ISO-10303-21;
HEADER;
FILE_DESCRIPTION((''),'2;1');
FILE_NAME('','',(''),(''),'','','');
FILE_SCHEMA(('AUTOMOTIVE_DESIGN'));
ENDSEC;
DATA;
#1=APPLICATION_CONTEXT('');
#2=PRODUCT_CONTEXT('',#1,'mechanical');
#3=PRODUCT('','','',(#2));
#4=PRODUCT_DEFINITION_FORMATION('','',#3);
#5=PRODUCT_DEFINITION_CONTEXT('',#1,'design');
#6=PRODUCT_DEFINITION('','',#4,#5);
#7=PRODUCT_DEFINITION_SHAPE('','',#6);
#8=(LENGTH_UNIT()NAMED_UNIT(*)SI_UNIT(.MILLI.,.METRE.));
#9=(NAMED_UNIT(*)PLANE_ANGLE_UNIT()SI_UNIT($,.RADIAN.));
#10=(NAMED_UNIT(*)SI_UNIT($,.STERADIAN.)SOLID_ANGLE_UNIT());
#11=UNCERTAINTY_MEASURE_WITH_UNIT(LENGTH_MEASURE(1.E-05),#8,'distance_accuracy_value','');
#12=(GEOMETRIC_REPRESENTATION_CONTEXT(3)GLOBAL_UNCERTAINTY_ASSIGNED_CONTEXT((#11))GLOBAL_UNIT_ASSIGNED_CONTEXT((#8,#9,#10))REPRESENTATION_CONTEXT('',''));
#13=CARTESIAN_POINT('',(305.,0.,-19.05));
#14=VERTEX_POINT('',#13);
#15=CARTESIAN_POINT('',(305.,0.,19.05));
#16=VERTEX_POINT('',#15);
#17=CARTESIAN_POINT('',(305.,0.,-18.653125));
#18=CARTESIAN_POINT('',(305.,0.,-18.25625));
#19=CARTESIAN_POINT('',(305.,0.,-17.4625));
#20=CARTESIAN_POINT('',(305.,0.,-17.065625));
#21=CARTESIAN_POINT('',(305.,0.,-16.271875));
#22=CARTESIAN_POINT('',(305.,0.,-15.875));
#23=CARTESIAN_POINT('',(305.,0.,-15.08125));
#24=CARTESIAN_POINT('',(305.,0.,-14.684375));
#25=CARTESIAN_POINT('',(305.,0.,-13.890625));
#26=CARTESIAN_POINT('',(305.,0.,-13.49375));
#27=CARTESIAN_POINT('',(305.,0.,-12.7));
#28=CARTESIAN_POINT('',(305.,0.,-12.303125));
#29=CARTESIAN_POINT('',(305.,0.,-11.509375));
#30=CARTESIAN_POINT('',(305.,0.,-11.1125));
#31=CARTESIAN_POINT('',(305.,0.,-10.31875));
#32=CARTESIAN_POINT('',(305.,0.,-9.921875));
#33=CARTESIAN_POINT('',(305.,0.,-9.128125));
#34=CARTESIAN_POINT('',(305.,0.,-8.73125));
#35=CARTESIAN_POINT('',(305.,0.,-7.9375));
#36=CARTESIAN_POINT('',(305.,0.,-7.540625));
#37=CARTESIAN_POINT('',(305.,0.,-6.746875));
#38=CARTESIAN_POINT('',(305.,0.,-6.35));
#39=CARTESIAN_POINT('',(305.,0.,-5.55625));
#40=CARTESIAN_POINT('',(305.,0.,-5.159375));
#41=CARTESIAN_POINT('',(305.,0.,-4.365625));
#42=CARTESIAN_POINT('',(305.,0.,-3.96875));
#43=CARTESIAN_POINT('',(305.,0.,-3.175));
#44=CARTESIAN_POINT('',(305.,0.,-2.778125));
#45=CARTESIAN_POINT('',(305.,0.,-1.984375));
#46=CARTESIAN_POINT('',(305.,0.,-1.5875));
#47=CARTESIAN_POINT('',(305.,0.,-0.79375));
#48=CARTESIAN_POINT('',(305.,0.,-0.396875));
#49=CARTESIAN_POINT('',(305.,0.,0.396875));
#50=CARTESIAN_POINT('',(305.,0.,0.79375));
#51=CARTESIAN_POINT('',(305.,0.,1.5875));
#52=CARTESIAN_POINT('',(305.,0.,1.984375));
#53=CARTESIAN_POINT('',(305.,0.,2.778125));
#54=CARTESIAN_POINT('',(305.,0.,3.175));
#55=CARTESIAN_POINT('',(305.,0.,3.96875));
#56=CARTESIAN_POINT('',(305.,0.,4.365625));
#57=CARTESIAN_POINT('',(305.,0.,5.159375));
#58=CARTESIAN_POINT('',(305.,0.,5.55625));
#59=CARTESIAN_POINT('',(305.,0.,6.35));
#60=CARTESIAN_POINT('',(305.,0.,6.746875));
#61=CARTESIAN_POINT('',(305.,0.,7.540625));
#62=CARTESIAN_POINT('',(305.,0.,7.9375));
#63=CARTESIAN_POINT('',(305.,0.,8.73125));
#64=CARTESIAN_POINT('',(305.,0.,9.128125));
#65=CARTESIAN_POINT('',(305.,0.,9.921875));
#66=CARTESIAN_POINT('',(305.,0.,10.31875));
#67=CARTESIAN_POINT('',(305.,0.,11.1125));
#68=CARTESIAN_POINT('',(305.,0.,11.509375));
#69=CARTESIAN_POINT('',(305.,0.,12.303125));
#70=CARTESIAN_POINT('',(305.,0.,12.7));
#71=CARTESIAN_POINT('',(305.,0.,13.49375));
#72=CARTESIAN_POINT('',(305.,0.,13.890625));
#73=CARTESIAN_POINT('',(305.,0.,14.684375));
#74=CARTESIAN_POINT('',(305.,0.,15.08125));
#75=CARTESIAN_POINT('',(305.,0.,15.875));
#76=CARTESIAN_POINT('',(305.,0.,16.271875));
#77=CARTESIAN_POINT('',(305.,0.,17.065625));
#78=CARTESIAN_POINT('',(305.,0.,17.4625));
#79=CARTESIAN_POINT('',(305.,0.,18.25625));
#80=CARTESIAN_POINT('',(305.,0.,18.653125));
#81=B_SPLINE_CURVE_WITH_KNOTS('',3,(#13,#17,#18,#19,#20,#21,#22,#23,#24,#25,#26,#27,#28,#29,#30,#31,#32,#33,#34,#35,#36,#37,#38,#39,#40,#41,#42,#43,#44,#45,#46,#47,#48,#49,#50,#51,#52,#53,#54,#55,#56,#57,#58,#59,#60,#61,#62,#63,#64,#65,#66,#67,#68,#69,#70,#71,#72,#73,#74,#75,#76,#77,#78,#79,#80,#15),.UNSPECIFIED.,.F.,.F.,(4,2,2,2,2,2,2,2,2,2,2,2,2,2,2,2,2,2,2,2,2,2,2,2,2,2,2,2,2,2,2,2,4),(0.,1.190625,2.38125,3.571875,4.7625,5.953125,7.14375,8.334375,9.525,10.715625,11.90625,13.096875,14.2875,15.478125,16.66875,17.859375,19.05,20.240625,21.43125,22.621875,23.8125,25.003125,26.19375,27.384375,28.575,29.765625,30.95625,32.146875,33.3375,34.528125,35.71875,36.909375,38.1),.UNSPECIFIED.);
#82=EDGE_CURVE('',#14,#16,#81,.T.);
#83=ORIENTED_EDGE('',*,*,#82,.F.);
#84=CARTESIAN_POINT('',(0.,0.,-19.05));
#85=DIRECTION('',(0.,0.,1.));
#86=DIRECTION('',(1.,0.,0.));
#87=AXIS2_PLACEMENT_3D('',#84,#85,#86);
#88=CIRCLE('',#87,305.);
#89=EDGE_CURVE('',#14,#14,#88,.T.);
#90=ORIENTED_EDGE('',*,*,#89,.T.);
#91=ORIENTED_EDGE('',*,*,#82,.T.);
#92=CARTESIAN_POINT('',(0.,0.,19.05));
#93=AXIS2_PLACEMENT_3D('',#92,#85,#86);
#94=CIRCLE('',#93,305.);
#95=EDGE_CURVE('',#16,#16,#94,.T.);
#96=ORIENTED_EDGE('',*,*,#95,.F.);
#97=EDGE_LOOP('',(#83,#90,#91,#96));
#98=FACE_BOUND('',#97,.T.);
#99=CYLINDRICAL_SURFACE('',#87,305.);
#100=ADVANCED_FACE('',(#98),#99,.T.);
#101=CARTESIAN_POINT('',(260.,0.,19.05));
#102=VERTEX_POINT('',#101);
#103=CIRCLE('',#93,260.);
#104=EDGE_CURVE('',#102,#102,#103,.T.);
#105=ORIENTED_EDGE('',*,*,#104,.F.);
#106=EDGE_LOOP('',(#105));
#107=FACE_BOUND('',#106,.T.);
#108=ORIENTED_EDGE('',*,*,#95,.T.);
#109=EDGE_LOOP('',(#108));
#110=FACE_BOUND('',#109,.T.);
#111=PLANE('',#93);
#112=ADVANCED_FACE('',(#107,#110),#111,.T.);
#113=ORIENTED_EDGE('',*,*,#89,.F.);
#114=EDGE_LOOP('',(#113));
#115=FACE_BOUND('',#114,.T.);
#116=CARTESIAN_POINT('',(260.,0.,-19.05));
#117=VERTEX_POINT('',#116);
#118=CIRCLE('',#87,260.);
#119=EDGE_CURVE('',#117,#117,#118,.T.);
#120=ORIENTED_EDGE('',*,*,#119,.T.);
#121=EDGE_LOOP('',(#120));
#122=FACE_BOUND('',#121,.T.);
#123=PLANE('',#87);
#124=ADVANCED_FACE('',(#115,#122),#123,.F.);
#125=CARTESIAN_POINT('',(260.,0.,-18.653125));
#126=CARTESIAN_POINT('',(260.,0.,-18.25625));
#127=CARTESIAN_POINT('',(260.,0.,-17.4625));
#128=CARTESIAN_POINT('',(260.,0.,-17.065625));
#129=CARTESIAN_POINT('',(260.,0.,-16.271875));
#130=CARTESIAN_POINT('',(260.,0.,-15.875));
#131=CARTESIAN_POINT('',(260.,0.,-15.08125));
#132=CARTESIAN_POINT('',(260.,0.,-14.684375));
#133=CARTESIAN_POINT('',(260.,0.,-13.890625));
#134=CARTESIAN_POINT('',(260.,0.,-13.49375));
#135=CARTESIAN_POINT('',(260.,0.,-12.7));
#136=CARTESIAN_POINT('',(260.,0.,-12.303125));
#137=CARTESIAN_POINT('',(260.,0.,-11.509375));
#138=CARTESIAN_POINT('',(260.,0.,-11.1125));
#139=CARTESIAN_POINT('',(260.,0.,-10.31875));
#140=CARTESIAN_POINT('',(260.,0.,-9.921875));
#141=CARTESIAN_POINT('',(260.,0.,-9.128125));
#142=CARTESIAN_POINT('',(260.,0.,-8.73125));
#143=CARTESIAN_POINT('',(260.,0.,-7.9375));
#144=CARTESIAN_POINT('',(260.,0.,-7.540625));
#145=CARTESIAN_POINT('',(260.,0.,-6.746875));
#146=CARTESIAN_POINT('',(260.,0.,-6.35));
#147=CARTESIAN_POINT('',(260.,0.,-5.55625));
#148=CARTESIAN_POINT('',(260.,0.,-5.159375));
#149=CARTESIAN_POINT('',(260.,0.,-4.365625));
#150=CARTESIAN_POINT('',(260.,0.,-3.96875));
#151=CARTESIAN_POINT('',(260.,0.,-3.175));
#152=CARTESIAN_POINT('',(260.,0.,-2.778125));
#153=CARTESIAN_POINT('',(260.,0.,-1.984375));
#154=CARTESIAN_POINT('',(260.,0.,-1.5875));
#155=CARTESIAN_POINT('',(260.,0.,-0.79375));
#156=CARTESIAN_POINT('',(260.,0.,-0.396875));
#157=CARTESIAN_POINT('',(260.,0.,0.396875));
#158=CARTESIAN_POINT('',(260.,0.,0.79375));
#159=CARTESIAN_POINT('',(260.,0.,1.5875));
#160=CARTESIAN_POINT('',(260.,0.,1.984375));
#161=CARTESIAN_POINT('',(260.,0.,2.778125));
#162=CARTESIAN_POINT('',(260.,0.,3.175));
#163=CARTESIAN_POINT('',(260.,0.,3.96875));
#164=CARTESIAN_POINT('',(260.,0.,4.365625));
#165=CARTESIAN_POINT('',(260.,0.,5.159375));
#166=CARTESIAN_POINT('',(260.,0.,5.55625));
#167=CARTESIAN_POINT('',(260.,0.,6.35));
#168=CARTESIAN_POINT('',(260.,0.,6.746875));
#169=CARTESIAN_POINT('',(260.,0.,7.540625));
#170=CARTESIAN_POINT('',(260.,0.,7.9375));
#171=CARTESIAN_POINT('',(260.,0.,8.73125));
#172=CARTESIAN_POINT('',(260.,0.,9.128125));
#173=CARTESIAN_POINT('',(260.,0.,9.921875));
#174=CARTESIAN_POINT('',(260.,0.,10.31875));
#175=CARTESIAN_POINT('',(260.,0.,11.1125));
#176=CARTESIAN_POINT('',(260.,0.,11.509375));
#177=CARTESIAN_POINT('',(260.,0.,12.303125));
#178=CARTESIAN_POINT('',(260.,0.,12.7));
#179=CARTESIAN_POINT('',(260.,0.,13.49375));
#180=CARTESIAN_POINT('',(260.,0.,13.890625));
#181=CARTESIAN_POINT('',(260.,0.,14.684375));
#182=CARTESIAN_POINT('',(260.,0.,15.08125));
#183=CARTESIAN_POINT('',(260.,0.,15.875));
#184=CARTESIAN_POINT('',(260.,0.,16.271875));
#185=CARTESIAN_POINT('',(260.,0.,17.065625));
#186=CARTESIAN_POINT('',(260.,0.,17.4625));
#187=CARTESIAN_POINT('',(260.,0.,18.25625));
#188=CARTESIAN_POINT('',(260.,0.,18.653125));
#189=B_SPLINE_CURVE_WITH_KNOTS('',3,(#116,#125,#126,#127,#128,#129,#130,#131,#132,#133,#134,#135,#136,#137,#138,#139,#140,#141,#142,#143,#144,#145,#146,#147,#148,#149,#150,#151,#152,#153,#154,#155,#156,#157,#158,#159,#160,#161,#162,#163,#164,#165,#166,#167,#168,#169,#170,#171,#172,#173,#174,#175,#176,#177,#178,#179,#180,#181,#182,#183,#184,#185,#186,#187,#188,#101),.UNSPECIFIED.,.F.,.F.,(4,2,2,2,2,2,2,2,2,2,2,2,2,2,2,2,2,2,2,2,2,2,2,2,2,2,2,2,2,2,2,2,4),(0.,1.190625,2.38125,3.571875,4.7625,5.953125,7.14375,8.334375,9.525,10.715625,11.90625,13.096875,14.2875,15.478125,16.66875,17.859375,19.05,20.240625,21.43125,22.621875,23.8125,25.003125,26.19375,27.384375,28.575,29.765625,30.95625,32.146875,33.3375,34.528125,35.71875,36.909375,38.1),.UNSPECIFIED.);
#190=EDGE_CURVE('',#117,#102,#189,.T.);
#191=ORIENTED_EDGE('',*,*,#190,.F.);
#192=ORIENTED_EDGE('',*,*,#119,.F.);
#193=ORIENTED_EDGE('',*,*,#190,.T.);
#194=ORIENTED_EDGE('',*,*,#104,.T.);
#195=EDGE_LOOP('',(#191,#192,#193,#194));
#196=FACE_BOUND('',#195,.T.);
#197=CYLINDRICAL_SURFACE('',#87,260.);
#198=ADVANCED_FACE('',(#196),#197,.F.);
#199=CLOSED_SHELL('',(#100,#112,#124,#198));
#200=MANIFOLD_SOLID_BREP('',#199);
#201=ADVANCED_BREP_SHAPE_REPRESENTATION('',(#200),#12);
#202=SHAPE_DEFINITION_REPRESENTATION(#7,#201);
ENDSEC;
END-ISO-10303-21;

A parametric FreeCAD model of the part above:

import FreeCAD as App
import Part
import Sketcher

V = App.Vector
Q = App.Units.Quantity

doc = App.newDocument("Part")
body = doc.addObject("PartDesign::Body", "Body")

sketch1 = body.newObject("Sketcher::SketchObject", "Sketch")
sketch1.AttachmentSupport = (doc.getObject("XY_Plane"), [""])
sketch1.MapMode = "FlatFace"
sketch1.addGeometry([
    Part.Circle(V(0, 0, 0), V(0, 0, 1), 305),
    Part.Circle(V(0, 0, 0), V(0, 0, 1), 260),
], False)
sketch1.addConstraint([
    Sketcher.Constraint("Coincident", 0, 3, -1, 1),
    Sketcher.Constraint("Coincident", 1, 3, -1, 1),
    Sketcher.Constraint("Diameter", 0, Q("610 mm")),
    Sketcher.Constraint("Diameter", 1, Q("520 mm")),
])
pad1 = body.newObject("PartDesign::Pad", "Pad")
pad1.Profile = sketch1
pad1.Type = "TwoLengths"
pad1.Length = 19.05
pad1.Length2 = 19.05

doc.recompute()
